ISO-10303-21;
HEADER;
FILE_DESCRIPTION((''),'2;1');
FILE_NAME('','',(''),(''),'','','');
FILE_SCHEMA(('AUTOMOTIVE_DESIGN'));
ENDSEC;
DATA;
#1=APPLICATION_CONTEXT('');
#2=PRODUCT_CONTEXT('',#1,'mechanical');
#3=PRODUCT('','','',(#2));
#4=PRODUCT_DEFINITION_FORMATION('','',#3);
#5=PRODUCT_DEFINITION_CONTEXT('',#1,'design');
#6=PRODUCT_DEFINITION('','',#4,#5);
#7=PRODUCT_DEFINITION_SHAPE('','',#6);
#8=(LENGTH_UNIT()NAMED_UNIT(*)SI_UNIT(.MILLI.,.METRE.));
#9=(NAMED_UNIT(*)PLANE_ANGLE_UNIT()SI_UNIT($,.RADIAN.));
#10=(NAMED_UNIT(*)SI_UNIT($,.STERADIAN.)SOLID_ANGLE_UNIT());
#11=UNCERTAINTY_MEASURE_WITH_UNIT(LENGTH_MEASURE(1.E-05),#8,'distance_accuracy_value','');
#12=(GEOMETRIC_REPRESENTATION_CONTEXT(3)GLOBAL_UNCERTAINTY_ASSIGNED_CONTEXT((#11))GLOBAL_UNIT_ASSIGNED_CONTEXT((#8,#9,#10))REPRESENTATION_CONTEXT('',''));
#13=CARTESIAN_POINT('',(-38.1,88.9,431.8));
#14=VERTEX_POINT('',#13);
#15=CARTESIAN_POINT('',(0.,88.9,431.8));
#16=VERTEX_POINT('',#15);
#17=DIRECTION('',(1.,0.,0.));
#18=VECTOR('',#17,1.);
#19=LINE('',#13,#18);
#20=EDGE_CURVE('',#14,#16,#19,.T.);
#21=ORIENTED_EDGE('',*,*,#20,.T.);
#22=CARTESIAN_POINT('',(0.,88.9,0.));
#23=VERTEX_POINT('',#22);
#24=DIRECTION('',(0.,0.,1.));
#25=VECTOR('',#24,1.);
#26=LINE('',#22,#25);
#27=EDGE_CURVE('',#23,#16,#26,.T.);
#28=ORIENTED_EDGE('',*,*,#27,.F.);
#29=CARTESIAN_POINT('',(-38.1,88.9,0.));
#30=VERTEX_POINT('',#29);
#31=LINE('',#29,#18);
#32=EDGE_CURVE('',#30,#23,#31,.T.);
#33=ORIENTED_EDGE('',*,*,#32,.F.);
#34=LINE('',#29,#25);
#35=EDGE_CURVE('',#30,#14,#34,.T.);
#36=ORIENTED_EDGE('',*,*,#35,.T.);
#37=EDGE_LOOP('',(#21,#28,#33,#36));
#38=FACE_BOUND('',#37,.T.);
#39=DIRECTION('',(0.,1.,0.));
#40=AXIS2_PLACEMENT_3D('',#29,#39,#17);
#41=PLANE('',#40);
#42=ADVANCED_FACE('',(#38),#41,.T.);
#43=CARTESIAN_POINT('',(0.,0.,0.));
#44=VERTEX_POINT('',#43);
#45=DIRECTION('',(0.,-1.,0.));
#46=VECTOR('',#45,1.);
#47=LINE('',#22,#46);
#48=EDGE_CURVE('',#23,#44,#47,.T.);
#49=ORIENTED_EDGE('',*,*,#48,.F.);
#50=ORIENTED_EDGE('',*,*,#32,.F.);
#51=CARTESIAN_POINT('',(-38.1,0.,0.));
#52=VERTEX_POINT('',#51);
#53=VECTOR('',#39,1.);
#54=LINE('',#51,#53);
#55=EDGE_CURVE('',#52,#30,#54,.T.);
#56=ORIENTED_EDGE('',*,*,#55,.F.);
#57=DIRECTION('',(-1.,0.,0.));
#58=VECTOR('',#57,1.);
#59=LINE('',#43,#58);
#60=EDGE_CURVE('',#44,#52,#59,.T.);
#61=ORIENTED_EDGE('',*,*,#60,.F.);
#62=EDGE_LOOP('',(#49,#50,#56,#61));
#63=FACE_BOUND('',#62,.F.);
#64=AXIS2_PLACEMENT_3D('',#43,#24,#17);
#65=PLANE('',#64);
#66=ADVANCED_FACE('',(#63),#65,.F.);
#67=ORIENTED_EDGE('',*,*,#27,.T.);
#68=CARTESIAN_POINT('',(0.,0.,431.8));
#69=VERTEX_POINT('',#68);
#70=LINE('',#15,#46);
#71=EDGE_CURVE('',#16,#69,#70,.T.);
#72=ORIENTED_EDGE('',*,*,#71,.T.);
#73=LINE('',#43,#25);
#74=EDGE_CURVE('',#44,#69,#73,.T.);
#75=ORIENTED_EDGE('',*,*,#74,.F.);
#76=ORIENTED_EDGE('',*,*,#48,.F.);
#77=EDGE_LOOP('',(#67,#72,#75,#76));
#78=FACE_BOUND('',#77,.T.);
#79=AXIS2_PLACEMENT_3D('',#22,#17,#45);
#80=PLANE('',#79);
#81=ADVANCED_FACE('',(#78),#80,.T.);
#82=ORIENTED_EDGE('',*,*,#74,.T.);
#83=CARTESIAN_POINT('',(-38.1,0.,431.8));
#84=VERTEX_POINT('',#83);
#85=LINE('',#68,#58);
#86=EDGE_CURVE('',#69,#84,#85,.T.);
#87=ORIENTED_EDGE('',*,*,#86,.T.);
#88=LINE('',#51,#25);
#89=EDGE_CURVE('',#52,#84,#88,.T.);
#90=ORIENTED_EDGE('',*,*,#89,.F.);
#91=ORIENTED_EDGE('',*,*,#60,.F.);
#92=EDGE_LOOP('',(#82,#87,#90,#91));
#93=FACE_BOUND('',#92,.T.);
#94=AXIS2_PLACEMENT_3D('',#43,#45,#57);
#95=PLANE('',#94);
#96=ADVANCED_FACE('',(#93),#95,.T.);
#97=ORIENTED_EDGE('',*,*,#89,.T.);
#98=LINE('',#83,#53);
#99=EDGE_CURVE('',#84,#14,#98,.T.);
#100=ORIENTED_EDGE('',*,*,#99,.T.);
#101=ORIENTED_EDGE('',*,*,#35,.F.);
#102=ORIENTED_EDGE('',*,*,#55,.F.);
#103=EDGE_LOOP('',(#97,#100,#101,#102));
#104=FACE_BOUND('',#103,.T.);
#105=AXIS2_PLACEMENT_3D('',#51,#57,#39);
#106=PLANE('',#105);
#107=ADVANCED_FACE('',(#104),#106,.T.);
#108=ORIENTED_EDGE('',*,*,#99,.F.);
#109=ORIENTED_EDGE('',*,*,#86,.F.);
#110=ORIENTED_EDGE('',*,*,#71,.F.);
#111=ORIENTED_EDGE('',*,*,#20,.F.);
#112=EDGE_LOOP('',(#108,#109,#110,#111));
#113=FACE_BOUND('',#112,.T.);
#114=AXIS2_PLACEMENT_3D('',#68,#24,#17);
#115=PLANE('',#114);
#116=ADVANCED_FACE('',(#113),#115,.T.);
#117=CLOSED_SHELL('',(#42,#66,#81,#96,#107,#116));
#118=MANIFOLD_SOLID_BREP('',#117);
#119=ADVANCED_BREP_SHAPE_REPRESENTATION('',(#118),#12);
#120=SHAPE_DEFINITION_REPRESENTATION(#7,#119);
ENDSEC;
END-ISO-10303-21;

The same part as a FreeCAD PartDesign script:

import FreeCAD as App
import Part
import Sketcher
from FreeCAD import Vector
Q = App.Units.Quantity

doc = App.newDocument("Part")
body = doc.addObject("PartDesign::Body", "Body")

# Sketch on XY plane
sketch1 = body.newObject("Sketcher::SketchObject", "Sketch")
sketch1.AttachmentSupport = (doc.getObject("XY_Plane"), [""])
sketch1.MapMode = "FlatFace"
sketch1.addGeometry([
    Part.LineSegment(Vector(-38.1, 0, 0), Vector(0, 0, 0)),
    Part.LineSegment(Vector(0, 0, 0), Vector(0, 88.9, 0)),
    Part.LineSegment(Vector(0, 88.9, 0), Vector(-38.1, 88.9, 0)),
    Part.LineSegment(Vector(-38.1, 88.9, 0), Vector(-38.1, 0, 0)),
], False)
sketch1.addConstraint([
    Sketcher.Constraint("Coincident", 0, 2, 1, 1),
    Sketcher.Constraint("Coincident", 1, 2, 2, 1),
    Sketcher.Constraint("Coincident", 2, 2, 3, 1),
    Sketcher.Constraint("Coincident", 3, 2, 0, 1),
    Sketcher.Constraint("Horizontal", 0),
    Sketcher.Constraint("Vertical", 1),
    Sketcher.Constraint("Horizontal", 2),
    Sketcher.Constraint("Vertical", 3),
    Sketcher.Constraint("Coincident", 0, 2, -1, 1),
    Sketcher.Constraint("DistanceX", 0, 1, 0, 2, Q("1.5 in")),
    Sketcher.Constraint("DistanceY", 1, 1, 1, 2, Q("3.5 in")),
])
pad1 = body.newObject("PartDesign::Pad", "Pad")
pad1.Profile = sketch1
pad1.Length = Q("17 in")

doc.recompute()
